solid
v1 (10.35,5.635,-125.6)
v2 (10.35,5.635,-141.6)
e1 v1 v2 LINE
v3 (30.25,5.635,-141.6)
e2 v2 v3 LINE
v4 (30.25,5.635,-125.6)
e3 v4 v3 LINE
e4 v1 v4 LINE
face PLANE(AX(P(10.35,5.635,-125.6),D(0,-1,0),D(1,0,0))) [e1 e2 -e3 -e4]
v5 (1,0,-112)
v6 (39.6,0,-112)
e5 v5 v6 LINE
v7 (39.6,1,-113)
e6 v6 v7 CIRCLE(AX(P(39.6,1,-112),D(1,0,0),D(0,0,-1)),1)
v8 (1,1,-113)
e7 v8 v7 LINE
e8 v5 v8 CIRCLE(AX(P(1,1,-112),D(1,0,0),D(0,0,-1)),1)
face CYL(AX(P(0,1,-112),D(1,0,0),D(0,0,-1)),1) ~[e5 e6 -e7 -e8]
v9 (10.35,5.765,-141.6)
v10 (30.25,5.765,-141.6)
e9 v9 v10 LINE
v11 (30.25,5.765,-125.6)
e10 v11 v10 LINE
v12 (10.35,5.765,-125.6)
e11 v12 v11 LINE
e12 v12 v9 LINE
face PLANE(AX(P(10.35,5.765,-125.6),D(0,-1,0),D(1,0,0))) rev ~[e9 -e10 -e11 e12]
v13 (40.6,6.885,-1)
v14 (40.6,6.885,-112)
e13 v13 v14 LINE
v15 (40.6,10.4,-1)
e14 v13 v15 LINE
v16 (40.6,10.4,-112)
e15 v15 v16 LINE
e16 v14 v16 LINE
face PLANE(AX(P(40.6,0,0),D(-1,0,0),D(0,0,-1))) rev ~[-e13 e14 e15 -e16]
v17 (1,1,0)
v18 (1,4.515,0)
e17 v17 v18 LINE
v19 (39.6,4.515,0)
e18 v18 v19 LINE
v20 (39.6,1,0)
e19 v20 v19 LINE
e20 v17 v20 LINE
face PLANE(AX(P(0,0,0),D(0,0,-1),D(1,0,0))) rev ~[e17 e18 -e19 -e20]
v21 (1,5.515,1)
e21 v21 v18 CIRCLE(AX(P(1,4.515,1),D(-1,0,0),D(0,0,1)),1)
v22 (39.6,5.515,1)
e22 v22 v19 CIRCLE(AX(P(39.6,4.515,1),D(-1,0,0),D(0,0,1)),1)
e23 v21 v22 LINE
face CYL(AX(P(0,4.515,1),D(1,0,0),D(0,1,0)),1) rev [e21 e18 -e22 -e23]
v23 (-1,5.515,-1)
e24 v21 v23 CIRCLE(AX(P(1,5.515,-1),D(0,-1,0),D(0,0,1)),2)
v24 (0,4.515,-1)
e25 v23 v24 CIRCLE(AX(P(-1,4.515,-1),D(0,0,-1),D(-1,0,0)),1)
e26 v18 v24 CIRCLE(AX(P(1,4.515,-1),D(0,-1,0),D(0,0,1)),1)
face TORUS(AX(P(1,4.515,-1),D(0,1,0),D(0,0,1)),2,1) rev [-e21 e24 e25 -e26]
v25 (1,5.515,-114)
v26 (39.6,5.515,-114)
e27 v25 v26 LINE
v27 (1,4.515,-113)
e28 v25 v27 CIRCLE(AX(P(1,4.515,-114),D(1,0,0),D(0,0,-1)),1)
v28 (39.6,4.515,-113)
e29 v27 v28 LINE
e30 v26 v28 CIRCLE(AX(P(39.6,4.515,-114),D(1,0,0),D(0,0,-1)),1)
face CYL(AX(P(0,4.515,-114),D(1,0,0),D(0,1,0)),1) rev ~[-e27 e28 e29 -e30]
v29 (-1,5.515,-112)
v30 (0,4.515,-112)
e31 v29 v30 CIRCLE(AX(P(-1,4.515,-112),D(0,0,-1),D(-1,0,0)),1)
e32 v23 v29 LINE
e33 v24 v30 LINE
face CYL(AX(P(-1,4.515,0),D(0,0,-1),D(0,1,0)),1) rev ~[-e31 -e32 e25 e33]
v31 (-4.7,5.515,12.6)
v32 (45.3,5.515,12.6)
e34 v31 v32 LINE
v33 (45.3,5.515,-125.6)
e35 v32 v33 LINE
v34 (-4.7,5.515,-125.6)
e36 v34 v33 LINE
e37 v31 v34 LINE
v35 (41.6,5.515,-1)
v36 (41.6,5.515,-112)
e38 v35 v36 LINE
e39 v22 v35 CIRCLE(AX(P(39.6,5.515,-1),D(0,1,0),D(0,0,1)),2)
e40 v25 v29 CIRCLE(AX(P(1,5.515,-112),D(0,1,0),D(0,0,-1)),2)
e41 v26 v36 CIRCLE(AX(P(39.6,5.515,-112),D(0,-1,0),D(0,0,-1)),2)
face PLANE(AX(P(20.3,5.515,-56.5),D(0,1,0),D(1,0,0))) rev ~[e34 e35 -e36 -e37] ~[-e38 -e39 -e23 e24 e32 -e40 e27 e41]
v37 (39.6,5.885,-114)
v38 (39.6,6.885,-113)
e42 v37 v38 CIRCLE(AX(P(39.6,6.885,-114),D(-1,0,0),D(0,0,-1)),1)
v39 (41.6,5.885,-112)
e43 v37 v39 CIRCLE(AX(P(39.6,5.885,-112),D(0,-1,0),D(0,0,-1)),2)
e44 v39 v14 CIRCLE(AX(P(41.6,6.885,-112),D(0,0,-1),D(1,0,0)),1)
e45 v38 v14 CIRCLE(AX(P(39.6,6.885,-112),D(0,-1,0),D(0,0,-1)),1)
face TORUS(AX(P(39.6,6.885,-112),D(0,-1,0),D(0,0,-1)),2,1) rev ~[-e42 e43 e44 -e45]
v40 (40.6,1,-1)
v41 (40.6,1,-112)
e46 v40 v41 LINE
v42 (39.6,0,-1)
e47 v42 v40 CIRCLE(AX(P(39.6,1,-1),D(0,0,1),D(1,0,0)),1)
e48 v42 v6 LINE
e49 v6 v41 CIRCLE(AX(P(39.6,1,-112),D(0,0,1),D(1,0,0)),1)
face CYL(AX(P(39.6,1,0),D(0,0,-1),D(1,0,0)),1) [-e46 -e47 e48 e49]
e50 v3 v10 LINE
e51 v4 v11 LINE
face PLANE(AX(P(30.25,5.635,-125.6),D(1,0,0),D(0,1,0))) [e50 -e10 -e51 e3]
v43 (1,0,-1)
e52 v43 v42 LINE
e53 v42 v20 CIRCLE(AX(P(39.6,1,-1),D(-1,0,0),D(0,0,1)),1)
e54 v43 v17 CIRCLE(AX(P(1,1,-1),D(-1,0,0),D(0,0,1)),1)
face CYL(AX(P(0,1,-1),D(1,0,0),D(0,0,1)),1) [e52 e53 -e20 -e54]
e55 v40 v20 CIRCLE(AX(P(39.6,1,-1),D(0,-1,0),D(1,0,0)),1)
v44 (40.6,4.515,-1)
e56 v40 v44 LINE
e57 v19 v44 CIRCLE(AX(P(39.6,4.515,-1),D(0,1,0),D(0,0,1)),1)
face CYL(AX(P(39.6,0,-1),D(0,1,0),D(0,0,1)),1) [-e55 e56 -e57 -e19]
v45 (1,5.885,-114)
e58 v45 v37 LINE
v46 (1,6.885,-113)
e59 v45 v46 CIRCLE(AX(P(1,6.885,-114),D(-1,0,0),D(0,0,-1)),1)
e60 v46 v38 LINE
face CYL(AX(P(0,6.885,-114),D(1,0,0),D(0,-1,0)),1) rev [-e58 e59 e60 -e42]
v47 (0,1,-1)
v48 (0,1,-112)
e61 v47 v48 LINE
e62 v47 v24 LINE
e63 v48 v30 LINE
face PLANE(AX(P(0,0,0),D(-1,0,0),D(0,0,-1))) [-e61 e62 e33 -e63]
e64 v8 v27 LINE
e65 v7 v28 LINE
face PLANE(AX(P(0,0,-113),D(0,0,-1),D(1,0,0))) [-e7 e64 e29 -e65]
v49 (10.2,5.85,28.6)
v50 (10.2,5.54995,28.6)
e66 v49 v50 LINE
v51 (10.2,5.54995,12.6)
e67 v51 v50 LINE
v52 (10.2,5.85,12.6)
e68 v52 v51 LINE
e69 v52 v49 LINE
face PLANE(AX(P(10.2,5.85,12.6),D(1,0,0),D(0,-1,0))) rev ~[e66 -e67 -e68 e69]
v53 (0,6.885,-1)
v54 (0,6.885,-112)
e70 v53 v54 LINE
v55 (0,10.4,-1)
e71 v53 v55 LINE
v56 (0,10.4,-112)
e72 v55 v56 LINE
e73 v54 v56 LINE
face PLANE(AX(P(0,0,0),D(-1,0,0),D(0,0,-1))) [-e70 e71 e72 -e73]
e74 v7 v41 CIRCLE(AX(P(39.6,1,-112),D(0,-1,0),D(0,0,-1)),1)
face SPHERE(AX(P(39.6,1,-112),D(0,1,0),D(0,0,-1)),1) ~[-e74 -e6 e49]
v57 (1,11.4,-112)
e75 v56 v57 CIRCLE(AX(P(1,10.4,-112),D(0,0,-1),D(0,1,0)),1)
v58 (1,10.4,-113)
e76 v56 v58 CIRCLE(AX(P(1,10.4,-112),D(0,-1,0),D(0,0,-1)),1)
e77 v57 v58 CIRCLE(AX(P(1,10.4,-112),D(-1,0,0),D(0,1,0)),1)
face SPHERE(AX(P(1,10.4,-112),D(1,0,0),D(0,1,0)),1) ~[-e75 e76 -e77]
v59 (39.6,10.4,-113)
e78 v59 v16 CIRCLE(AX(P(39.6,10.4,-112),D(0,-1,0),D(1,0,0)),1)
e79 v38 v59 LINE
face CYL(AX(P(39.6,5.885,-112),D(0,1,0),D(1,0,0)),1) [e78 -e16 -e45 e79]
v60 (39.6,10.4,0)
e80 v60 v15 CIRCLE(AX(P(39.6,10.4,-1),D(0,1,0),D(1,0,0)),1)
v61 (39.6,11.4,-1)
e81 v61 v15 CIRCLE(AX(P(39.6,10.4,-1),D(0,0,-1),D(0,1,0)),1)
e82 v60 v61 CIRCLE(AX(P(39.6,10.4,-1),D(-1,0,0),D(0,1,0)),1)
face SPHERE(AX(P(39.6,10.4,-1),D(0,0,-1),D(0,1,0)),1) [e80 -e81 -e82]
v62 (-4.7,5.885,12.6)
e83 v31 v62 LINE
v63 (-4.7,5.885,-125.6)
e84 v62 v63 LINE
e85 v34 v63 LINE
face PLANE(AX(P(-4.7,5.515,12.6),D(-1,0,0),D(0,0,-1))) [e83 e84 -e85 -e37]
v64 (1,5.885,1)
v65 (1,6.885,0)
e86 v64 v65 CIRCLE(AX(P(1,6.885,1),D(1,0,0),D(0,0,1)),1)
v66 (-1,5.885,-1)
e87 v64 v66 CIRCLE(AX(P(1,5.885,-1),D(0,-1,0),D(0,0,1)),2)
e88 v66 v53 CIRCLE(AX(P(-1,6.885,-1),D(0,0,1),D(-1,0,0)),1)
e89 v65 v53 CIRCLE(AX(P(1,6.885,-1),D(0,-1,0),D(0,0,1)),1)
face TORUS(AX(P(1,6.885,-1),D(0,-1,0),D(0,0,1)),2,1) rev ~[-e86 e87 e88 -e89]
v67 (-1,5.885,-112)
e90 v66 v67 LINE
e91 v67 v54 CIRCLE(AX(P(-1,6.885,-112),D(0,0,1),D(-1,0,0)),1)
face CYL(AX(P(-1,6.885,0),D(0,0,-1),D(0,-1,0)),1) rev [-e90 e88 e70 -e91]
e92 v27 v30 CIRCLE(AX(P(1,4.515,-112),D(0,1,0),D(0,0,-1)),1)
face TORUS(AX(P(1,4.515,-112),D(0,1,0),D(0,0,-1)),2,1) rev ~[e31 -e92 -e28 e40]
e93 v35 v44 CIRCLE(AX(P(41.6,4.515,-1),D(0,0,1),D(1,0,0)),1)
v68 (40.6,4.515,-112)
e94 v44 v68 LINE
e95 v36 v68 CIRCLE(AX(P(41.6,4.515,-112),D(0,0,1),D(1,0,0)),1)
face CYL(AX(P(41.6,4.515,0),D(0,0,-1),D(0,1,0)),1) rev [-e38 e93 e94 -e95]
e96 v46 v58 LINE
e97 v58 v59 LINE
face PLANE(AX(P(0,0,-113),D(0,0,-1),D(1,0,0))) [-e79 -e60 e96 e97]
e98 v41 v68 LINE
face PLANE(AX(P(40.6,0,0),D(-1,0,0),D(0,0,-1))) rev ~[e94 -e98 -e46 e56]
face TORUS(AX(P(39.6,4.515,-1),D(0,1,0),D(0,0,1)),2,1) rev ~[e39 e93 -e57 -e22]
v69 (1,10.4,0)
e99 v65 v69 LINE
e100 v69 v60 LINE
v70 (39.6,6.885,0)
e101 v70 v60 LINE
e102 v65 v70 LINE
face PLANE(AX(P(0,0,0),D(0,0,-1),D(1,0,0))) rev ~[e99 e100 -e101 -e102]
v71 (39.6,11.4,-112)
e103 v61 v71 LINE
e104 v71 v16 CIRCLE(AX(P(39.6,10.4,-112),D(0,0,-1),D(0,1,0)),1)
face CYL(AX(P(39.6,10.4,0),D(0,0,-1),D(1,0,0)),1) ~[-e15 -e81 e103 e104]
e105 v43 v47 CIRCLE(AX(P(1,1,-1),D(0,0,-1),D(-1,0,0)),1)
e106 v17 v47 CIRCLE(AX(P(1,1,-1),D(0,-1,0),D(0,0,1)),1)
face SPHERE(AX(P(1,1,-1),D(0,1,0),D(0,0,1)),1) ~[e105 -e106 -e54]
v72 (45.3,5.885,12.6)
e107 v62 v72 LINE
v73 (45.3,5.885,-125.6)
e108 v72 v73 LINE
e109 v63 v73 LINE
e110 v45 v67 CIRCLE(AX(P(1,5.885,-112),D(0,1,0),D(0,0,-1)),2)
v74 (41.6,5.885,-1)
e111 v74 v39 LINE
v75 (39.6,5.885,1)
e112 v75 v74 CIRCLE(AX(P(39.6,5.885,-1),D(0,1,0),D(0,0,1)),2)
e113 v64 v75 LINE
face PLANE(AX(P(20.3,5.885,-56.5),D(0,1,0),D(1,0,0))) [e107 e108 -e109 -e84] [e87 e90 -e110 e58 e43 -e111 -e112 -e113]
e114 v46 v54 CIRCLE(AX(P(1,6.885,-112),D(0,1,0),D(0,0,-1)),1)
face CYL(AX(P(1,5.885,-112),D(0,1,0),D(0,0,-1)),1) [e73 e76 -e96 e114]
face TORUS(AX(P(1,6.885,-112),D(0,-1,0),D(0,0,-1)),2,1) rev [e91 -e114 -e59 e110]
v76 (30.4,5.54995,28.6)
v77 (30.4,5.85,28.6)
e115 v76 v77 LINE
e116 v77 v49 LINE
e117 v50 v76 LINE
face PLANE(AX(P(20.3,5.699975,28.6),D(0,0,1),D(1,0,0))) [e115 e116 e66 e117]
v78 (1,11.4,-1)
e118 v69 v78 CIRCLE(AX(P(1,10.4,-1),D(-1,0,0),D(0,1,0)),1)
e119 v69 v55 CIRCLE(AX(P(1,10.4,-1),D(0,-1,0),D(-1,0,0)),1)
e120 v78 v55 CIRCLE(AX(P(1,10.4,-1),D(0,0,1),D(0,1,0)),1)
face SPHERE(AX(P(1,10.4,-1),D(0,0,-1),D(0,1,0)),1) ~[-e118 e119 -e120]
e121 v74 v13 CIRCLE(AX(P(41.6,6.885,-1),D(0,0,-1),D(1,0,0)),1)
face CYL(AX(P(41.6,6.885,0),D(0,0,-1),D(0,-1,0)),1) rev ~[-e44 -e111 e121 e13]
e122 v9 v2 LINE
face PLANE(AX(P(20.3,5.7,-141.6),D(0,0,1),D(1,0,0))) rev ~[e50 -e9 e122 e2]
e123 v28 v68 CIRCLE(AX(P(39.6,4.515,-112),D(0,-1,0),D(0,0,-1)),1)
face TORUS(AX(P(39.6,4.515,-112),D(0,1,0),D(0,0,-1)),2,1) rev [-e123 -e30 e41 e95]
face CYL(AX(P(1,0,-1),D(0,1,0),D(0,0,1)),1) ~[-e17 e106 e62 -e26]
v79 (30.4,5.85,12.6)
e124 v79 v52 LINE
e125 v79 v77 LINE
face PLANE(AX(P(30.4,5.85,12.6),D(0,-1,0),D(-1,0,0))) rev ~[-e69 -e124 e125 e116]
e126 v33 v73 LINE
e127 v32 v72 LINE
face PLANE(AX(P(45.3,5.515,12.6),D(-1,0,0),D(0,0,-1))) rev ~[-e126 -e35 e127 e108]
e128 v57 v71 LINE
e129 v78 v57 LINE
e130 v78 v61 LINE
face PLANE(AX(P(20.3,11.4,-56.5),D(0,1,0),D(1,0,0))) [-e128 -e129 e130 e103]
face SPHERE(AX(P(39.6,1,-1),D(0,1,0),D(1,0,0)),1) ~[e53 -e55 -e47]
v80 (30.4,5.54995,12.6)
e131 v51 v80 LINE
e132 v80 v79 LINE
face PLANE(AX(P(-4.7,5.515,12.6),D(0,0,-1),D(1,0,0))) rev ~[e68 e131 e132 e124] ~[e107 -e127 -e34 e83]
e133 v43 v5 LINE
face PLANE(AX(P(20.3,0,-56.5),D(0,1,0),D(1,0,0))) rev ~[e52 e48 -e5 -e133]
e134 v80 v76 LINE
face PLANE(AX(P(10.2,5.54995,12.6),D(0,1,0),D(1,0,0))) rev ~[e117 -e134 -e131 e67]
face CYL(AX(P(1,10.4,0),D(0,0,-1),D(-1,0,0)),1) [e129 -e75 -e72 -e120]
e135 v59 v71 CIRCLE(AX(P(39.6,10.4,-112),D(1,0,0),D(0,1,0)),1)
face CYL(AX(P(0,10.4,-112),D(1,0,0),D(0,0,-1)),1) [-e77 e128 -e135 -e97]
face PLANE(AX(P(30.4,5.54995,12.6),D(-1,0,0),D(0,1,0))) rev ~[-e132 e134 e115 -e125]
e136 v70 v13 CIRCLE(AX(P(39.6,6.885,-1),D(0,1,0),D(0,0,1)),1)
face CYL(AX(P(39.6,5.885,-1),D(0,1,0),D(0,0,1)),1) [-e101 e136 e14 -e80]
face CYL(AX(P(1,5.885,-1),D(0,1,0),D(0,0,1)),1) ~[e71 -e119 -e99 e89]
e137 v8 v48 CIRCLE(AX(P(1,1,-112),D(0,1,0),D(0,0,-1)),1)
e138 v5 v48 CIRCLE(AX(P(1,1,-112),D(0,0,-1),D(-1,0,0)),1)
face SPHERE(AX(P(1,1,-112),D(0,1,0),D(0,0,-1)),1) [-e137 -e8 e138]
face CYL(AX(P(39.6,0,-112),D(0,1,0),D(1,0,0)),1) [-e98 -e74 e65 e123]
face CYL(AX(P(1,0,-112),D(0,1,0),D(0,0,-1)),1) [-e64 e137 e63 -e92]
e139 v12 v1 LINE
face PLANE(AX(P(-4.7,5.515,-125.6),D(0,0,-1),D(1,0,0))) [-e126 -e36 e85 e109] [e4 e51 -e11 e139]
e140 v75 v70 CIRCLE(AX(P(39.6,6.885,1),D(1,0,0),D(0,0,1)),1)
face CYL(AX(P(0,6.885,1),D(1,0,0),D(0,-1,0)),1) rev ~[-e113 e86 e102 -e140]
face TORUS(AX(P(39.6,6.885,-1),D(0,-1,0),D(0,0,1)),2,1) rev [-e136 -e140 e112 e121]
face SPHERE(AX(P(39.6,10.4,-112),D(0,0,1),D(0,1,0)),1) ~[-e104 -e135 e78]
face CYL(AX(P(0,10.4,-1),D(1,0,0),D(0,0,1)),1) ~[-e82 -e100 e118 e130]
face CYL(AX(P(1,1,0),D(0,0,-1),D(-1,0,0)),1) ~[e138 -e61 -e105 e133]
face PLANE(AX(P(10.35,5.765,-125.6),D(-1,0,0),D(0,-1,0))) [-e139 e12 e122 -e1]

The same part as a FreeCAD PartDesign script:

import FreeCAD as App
import Part
import Sketcher
Q = App.Units.Quantity


def edges_at(feature, points):
    """Names of the edges that pass closest to the given points."""
    edges = feature.Shape.Edges
    near = lambda p: min(range(len(edges)), key=lambda i: edges[i].distToShape(Part.Vertex(*p))[0])
    return sorted({f"Edge{near(p) + 1}" for p in points})


def add_polygon(sketch, points):
    """Adds a closed chain of lines whose ends are joined by coincident constraints."""
    first, n = sketch.GeometryCount, len(points)
    for a, b in zip(points, points[1:] + points[:1]):
        sketch.addGeometry(Part.LineSegment(App.Vector(*a, 0), App.Vector(*b, 0)), False)
    for i in range(n):
        sketch.addConstraint(Sketcher.Constraint("Coincident", first + i, 2, first + (i + 1) % n, 1))

doc = App.newDocument("Part")
body = doc.addObject("PartDesign::Body", "Body")

# Sketch on XZ plane
sketch1 = doc.addObject("Sketcher::SketchObject", "Sketch")
body.addObject(sketch1)
sketch1.AttachmentSupport = (doc.XZ_Plane, [""])
sketch1.MapMode = "FlatFace"
add_polygon(sketch1, [(0, -113), (0, 0), (40.6, 0), (40.6, -113)])  # lines 0-3
sketch1.addConstraint(Sketcher.Constraint("Vertical", 0))
sketch1.addConstraint(Sketcher.Constraint("Horizontal", 1))
sketch1.addConstraint(Sketcher.Constraint("Vertical", 2))
sketch1.addConstraint(Sketcher.Constraint("Horizontal", 3))
sketch1.addConstraint(Sketcher.Constraint("Coincident", 0, 2, -1, 1))
sketch1.addConstraint(Sketcher.Constraint("DistanceY", 0, 1, 0, 2, Q("113 mm")))
sketch1.addConstraint(Sketcher.Constraint("DistanceX", 1, 1, 1, 2, Q("40.6 mm")))
pad1 = doc.addObject("PartDesign::Pad", "Pad")
body.addObject(pad1)
pad1.Profile = sketch1
pad1.Length = 11.4
pad1.Reversed = True
body2 = doc.addObject("PartDesign::Body", "Body001")

# Sketch on XY plane
sketch2 = doc.addObject("Sketcher::SketchObject", "Sketch001")
body2.addObject(sketch2)
sketch2.AttachmentSupport = (doc.getObject("XY_Plane001"), [""])
sketch2.MapMode = "FlatFace"
add_polygon(sketch2, [(-4.7, 5.7), (-4.7, 5.69), (0, 5.69), (0, 5.7)])  # lines 0-3
sketch2.addConstraint(Sketcher.Constraint("Vertical", 0))
sketch2.addConstraint(Sketcher.Constraint("Horizontal", 1))
sketch2.addConstraint(Sketcher.Constraint("Vertical", 2))
sketch2.addConstraint(Sketcher.Constraint("Horizontal", 3))
sketch2.addConstraint(Sketcher.Constraint("PointOnObject", 1, 2, -2))
sketch2.addConstraint(Sketcher.Constraint("DistanceX", 1, 1, 1, 2, Q("4.7 mm")))
sketch2.addConstraint(Sketcher.Constraint("DistanceY", 0, 2, 0, 1, Q("0.01 mm")))
sketch2.addConstraint(Sketcher.Constraint("DistanceY", -1, 1, 2, 2, Q("5.7 mm")))
pad2 = doc.addObject("PartDesign::Pad", "Pad001")
body2.addObject(pad2)
pad2.Profile = sketch2
pad2.Length = 1
body.AllowCompound = True
doc.recompute()

boolean = doc.addObject("PartDesign::Boolean", "Boolean")
body.addObject(boolean)
boolean.Type = "Fuse"
boolean.addObjects([body2])

# Sketch on XZ plane
sketch3 = doc.addObject("Sketcher::SketchObject", "Sketch002")
body.addObject(sketch3)
sketch3.AttachmentSupport = (doc.XZ_Plane, [""])
sketch3.MapMode = "FlatFace"
sketch3.AttachmentOffset = App.Placement(App.Vector(0, 0, -5.7), App.Rotation())
add_polygon(sketch3, [(-4.7, -125.6), (-4.7, 12.6), (45.3, 12.6), (45.3, -125.6)])  # lines 0-3
sketch3.addConstraint(Sketcher.Constraint("Vertical", 0))
sketch3.addConstraint(Sketcher.Constraint("Horizontal", 1))
sketch3.addConstraint(Sketcher.Constraint("Vertical", 2))
sketch3.addConstraint(Sketcher.Constraint("Horizontal", 3))
sketch3.addConstraint(Sketcher.Constraint("DistanceX", 1, 1, 1, 2, Q("50 mm")))
sketch3.addConstraint(Sketcher.Constraint("DistanceY", 0, 1, 0, 2, Q("138.2 mm")))
sketch3.addConstraint(Sketcher.Constraint("DistanceX", 0, 2, -1, 1, Q("4.7 mm")))
sketch3.addConstraint(Sketcher.Constraint("DistanceY", -1, 1, 0, 2, Q("12.6 mm")))
pad3 = doc.addObject("PartDesign::Pad", "Pad002")
body.addObject(pad3)
pad3.Profile = sketch3
pad3.Type = "TwoLengths"
pad3.Length = 0.185
pad3.Length2 = 0.185
pad3.Reversed = True

# Sketch on XY plane
sketch4 = doc.addObject("Sketcher::SketchObject", "Sketch003")
body.addObject(sketch4)
sketch4.AttachmentSupport = (doc.XY_Plane, [""])
sketch4.MapMode = "FlatFace"
sketch4.AttachmentOffset = App.Placement(App.Vector(0, 0, 12.6), App.Rotation())
add_polygon(sketch4, [(30.4, 5.85), (10.2, 5.85), (10.2, 5.54995), (30.4, 5.54995)])  # lines 0-3
sketch4.addConstraint(Sketcher.Constraint("Horizontal", 0))
sketch4.addConstraint(Sketcher.Constraint("Vertical", 1))
sketch4.addConstraint(Sketcher.Constraint("Horizontal", 2))
sketch4.addConstraint(Sketcher.Constraint("Vertical", 3))
sketch4.addConstraint(Sketcher.Constraint("DistanceX", 0, 2, 0, 1, Q("20.2 mm")))
sketch4.addConstraint(Sketcher.Constraint("DistanceX", -1, 1, 0, 2, Q("10.2 mm")))
sketch4.addConstraint(Sketcher.Constraint("DistanceY", -1, 1, 0, 2, Q("5.85 mm")))
sketch4.addConstraint(Sketcher.Constraint("DistanceY", 1, 2, 1, 1, Q("0.30005 mm")))
pad4 = doc.addObject("PartDesign::Pad", "Pad003")
body.addObject(pad4)
pad4.Profile = sketch4
pad4.Length = 16

# Sketch on XY plane
sketch5 = doc.addObject("Sketcher::SketchObject", "Sketch004")
body.addObject(sketch5)
sketch5.AttachmentSupport = (doc.XY_Plane, [""])
sketch5.MapMode = "FlatFace"
sketch5.AttachmentOffset = App.Placement(App.Vector(0, 0, -125.6), App.Rotation())
add_polygon(sketch5, [(10.35, 5.765), (30.25, 5.765), (30.25, 5.635), (10.35, 5.635)])  # lines 0-3
sketch5.addConstraint(Sketcher.Constraint("Horizontal", 0))
sketch5.addConstraint(Sketcher.Constraint("Vertical", 1))
sketch5.addConstraint(Sketcher.Constraint("Horizontal", 2))
sketch5.addConstraint(Sketcher.Constraint("Vertical", 3))
sketch5.addConstraint(Sketcher.Constraint("DistanceX", 0, 1, 0, 2, Q("19.9 mm")))
sketch5.addConstraint(Sketcher.Constraint("DistanceY", 1, 2, 1, 1, Q("0.13 mm")))
sketch5.addConstraint(Sketcher.Constraint("DistanceX", -1, 1, 0, 2, Q("30.25 mm")))
sketch5.addConstraint(Sketcher.Constraint("DistanceY", -1, 1, 0, 2, Q("5.765 mm")))
pad5 = doc.addObject("PartDesign::Pad", "Pad004")
body.addObject(pad5)
pad5.Profile = sketch5
pad5.Length = 16
pad5.Reversed = True
doc.recompute()

fillet = doc.addObject("PartDesign::Fillet", "Fillet")
body.addObject(fillet)
fillet.Base = (pad5, edges_at(pad5, [
    (40.6, 11.4, -56.5),
    (20.3, 11.4, -113),
    (0, 2.757, -113),
    (40.6, 2.757, -113),
    (20.3, 5.885, -113),
    (20.3, 5.515, -113),
    (40.6, 2.757, 0),
    (0, 2.757, 0),
    (20.3, 5.885, 0),
    (0, 5.885, -56.5),
    (40.6, 5.885, -56.5),
    (20.3, 5.515, 0),
    (0, 5.515, -56.5),
    (40.6, 5.515, -56.5),
    (0, 11.4, -56.5),
    (20.3, 0, -113),
    (40.6, 0, -56.5),
    (20.3, 0, 0),
    (0, 0, -56.5),
    (20.3, 11.4, 0),
    (0, 8.643, -113),
    (40.6, 8.643, -113),
    (40.6, 8.643, 0),
    (0, 8.643, 0),
]))
fillet.Radius = 1

doc.recompute()
